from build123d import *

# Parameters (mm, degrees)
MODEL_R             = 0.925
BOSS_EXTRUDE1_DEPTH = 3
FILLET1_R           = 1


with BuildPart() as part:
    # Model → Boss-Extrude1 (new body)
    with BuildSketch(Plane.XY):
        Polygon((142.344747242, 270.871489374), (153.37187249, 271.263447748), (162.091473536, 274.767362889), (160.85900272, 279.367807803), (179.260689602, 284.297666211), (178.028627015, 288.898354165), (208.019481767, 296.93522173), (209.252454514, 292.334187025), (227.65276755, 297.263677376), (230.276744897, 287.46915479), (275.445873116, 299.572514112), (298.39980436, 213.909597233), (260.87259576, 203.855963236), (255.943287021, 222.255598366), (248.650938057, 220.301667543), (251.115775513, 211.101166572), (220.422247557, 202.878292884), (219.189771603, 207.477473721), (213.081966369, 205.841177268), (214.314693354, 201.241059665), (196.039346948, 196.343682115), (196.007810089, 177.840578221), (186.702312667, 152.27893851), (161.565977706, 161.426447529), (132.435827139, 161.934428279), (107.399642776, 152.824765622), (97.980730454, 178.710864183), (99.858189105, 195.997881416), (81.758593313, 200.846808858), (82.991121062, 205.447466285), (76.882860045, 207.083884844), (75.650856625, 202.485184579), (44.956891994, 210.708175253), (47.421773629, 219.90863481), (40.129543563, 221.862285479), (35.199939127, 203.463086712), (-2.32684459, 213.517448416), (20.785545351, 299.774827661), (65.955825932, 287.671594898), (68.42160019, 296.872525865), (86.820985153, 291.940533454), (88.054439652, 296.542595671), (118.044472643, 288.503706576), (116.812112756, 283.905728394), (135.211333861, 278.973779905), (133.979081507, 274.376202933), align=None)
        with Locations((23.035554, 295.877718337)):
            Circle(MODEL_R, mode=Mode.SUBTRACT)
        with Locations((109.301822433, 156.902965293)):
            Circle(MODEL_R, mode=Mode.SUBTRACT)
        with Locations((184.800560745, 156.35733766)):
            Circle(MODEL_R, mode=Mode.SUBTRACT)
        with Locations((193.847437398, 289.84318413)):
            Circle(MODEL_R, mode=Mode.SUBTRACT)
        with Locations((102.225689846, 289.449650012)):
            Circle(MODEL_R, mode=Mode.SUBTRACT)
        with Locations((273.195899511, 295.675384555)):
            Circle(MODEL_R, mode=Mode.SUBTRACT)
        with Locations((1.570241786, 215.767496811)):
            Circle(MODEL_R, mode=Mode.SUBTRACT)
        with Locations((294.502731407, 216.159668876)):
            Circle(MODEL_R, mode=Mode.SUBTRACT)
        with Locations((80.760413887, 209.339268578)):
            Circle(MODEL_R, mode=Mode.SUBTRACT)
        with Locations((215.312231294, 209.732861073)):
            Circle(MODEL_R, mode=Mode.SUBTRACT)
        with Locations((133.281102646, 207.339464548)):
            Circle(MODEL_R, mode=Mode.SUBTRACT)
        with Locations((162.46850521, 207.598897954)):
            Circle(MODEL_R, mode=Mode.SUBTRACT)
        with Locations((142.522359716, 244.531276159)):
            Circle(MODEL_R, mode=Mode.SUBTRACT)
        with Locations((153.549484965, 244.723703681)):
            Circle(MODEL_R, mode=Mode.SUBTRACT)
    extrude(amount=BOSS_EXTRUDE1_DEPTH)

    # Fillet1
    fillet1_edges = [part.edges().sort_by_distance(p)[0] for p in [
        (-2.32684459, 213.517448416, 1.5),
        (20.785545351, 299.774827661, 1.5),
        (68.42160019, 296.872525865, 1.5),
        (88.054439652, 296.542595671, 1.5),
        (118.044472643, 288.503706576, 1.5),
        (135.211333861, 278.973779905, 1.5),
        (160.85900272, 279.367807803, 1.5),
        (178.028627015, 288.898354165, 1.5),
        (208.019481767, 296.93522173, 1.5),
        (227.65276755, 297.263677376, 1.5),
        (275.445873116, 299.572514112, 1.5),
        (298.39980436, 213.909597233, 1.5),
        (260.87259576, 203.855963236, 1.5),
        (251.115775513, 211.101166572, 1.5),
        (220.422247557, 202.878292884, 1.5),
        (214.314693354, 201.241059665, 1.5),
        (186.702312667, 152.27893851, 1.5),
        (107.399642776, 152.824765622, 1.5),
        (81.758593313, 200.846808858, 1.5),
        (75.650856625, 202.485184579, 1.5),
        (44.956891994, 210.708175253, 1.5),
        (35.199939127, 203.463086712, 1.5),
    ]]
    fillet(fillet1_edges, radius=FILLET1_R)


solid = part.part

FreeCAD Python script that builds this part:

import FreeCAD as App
import Part
import Sketcher


def edges_at(feature, points):
    """Names of the edges that pass closest to the given points."""
    edges = feature.Shape.Edges
    near = lambda p: min(range(len(edges)), key=lambda i: edges[i].distToShape(Part.Vertex(*p))[0])
    return sorted({f"Edge{near(p) + 1}" for p in points})

doc = App.newDocument("Part")
params = doc.addObject("Spreadsheet::Sheet", "Params")
for row, (alias, value) in enumerate([
    ("sketch1_diameter", "1.85 mm"),
    ("sketch1_diameter2", "1.85 mm"),
    ("sketch1_diameter3", "1.85 mm"),
    ("sketch1_diameter4", "1.85 mm"),
    ("sketch1_diameter5", "1.85 mm"),
    ("pad1_length", "3 mm"),
    ("fillet_radius", "1 mm"),
], start=1):
    params.set(f"A{row}", alias)
    params.set(f"B{row}", "=" + value)
    params.setAlias(f"B{row}", alias)

body = doc.addObject("PartDesign::Body", "Body")

sketch1 = body.newObject("Sketcher::SketchObject", "Sketch")
sketch1.AttachmentSupport = (doc.getObject("XY_Plane"), [""])
sketch1.MapMode = "FlatFace"
sketch1.addGeometry([
    Part.LineSegment(App.Vector(153.371872, 271.263448, 0), App.Vector(142.344747, 270.871489, 0)),
    Part.LineSegment(App.Vector(142.344747, 270.871489, 0), App.Vector(133.979082, 274.376203, 0)),
    Part.LineSegment(App.Vector(133.979082, 274.376203, 0), App.Vector(135.211334, 278.97378, 0)),
    Part.LineSegment(App.Vector(135.211334, 278.97378, 0), App.Vector(116.812113, 283.905728, 0)),
    Part.LineSegment(App.Vector(116.812113, 283.905728, 0), App.Vector(118.044473, 288.503707, 0)),
    Part.LineSegment(App.Vector(118.044473, 288.503707, 0), App.Vector(88.05444, 296.542596, 0)),
    Part.LineSegment(App.Vector(88.05444, 296.542596, 0), App.Vector(86.820985, 291.940533, 0)),
    Part.LineSegment(App.Vector(86.820985, 291.940533, 0), App.Vector(68.4216, 296.872526, 0)),
    Part.LineSegment(App.Vector(68.4216, 296.872526, 0), App.Vector(65.955826, 287.671595, 0)),
    Part.LineSegment(App.Vector(65.955826, 287.671595, 0), App.Vector(20.785545, 299.774828, 0)),
    Part.LineSegment(App.Vector(20.785545, 299.774828, 0), App.Vector(-2.326845, 213.517448, 0)),
    Part.LineSegment(App.Vector(-2.326845, 213.517448, 0), App.Vector(35.199939, 203.463087, 0)),
    Part.LineSegment(App.Vector(35.199939, 203.463087, 0), App.Vector(40.129544, 221.862285, 0)),
    Part.LineSegment(App.Vector(40.129544, 221.862285, 0), App.Vector(47.421774, 219.908635, 0)),
    Part.LineSegment(App.Vector(47.421774, 219.908635, 0), App.Vector(44.956892, 210.708175, 0)),
    Part.LineSegment(App.Vector(44.956892, 210.708175, 0), App.Vector(75.650857, 202.485185, 0)),
    Part.LineSegment(App.Vector(75.650857, 202.485185, 0), App.Vector(76.88286, 207.083885, 0)),
    Part.LineSegment(App.Vector(76.88286, 207.083885, 0), App.Vector(82.991121, 205.447466, 0)),
    Part.LineSegment(App.Vector(82.991121, 205.447466, 0), App.Vector(81.758593, 200.846809, 0)),
    Part.LineSegment(App.Vector(81.758593, 200.846809, 0), App.Vector(99.858189, 195.997881, 0)),
    Part.LineSegment(App.Vector(99.858189, 195.997881, 0), App.Vector(97.98073, 178.710864, 0)),
    Part.LineSegment(App.Vector(97.98073, 178.710864, 0), App.Vector(107.399643, 152.824766, 0)),
    Part.LineSegment(App.Vector(107.399643, 152.824766, 0), App.Vector(132.435827, 161.934428, 0)),
    Part.LineSegment(App.Vector(132.435827, 161.934428, 0), App.Vector(161.565978, 161.426448, 0)),
    Part.LineSegment(App.Vector(161.565978, 161.426448, 0), App.Vector(186.702313, 152.278939, 0)),
    Part.LineSegment(App.Vector(186.702313, 152.278939, 0), App.Vector(196.00781, 177.840578, 0)),
    Part.LineSegment(App.Vector(196.00781, 177.840578, 0), App.Vector(196.039347, 196.343682, 0)),
    Part.LineSegment(App.Vector(196.039347, 196.343682, 0), App.Vector(214.314693, 201.24106, 0)),
    Part.LineSegment(App.Vector(214.314693, 201.24106, 0), App.Vector(213.081966, 205.841177, 0)),
    Part.LineSegment(App.Vector(213.081966, 205.841177, 0), App.Vector(219.189772, 207.477474, 0)),
    Part.LineSegment(App.Vector(219.189772, 207.477474, 0), App.Vector(220.422248, 202.878293, 0)),
    Part.LineSegment(App.Vector(220.422248, 202.878293, 0), App.Vector(251.115776, 211.101167, 0)),
    Part.LineSegment(App.Vector(251.115776, 211.101167, 0), App.Vector(248.650938, 220.301668, 0)),
    Part.LineSegment(App.Vector(248.650938, 220.301668, 0), App.Vector(255.943287, 222.255598, 0)),
    Part.LineSegment(App.Vector(255.943287, 222.255598, 0), App.Vector(260.872596, 203.855963, 0)),
    Part.LineSegment(App.Vector(260.872596, 203.855963, 0), App.Vector(298.399804, 213.909597, 0)),
    Part.LineSegment(App.Vector(298.399804, 213.909597, 0), App.Vector(275.445873, 299.572514, 0)),
    Part.LineSegment(App.Vector(275.445873, 299.572514, 0), App.Vector(230.276745, 287.469155, 0)),
    Part.LineSegment(App.Vector(230.276745, 287.469155, 0), App.Vector(227.652768, 297.263677, 0)),
    Part.LineSegment(App.Vector(227.652768, 297.263677, 0), App.Vector(209.252455, 292.334187, 0)),
    Part.LineSegment(App.Vector(209.252455, 292.334187, 0), App.Vector(208.019482, 296.935222, 0)),
    Part.LineSegment(App.Vector(208.019482, 296.935222, 0), App.Vector(178.028627, 288.898354, 0)),
    Part.LineSegment(App.Vector(178.028627, 288.898354, 0), App.Vector(179.26069, 284.297666, 0)),
    Part.LineSegment(App.Vector(179.26069, 284.297666, 0), App.Vector(160.859003, 279.367808, 0)),
    Part.LineSegment(App.Vector(160.859003, 279.367808, 0), App.Vector(162.091474, 274.767363, 0)),
    Part.LineSegment(App.Vector(162.091474, 274.767363, 0), App.Vector(153.371872, 271.263448, 0)),
    Part.Circle(App.Vector(184.800561, 156.357338, 0), App.Vector(0, 0, 1), 0.925),
    Part.Circle(App.Vector(294.502731, 216.159669, 0), App.Vector(0, 0, 1), 0.925),
    Part.Circle(App.Vector(162.468505, 207.598898, 0), App.Vector(0, 0, 1), 0.925),
    Part.Circle(App.Vector(215.312231, 209.732861, 0), App.Vector(0, 0, 1), 0.925),
    Part.Circle(App.Vector(109.301822, 156.902965, 0), App.Vector(0, 0, 1), 0.925),
    Part.Circle(App.Vector(133.281103, 207.339465, 0), App.Vector(0, 0, 1), 0.925),
    Part.Circle(App.Vector(80.760414, 209.339269, 0), App.Vector(0, 0, 1), 0.925),
    Part.Circle(App.Vector(1.570242, 215.767497, 0), App.Vector(0, 0, 1), 0.925),
    Part.Circle(App.Vector(153.549485, 244.723704, 0), App.Vector(0, 0, 1), 0.925),
    Part.Circle(App.Vector(273.1959, 295.675385, 0), App.Vector(0, 0, 1), 0.925),
    Part.Circle(App.Vector(193.847437, 289.843184, 0), App.Vector(0, 0, 1), 0.925),
    Part.Circle(App.Vector(142.52236, 244.531276, 0), App.Vector(0, 0, 1), 0.925),
    Part.Circle(App.Vector(102.22569, 289.44965, 0), App.Vector(0, 0, 1), 0.925),
    Part.Circle(App.Vector(23.035554, 295.877718, 0), App.Vector(0, 0, 1), 0.925),
], False)
sketch1.addConstraint([
    Sketcher.Constraint("Coincident", 0, 2, 1, 1),
    Sketcher.Constraint("Coincident", 1, 2, 2, 1),
    Sketcher.Constraint("Coincident", 2, 2, 3, 1),
    Sketcher.Constraint("Coincident", 3, 2, 4, 1),
    Sketcher.Constraint("Coincident", 4, 2, 5, 1),
    Sketcher.Constraint("Coincident", 5, 2, 6, 1),
    Sketcher.Constraint("Coincident", 6, 2, 7, 1),
    Sketcher.Constraint("Coincident", 7, 2, 8, 1),
    Sketcher.Constraint("Coincident", 8, 2, 9, 1),
    Sketcher.Constraint("Coincident", 9, 2, 10, 1),
    Sketcher.Constraint("Coincident", 10, 2, 11, 1),
    Sketcher.Constraint("Coincident", 11, 2, 12, 1),
    Sketcher.Constraint("Coincident", 12, 2, 13, 1),
    Sketcher.Constraint("Coincident", 13, 2, 14, 1),
    Sketcher.Constraint("Coincident", 14, 2, 15, 1),
    Sketcher.Constraint("Coincident", 15, 2, 16, 1),
    Sketcher.Constraint("Coincident", 16, 2, 17, 1),
    Sketcher.Constraint("Coincident", 17, 2, 18, 1),
    Sketcher.Constraint("Coincident", 18, 2, 19, 1),
    Sketcher.Constraint("Coincident", 19, 2, 20, 1),
    Sketcher.Constraint("Coincident", 20, 2, 21, 1),
    Sketcher.Constraint("Coincident", 21, 2, 22, 1),
    Sketcher.Constraint("Coincident", 22, 2, 23, 1),
    Sketcher.Constraint("Coincident", 23, 2, 24, 1),
    Sketcher.Constraint("Coincident", 24, 2, 25, 1),
    Sketcher.Constraint("Coincident", 25, 2, 26, 1),
    Sketcher.Constraint("Coincident", 26, 2, 27, 1),
    Sketcher.Constraint("Coincident", 27, 2, 28, 1),
    Sketcher.Constraint("Coincident", 28, 2, 29, 1),
    Sketcher.Constraint("Coincident", 29, 2, 30, 1),
    Sketcher.Constraint("Coincident", 30, 2, 31, 1),
    Sketcher.Constraint("Coincident", 31, 2, 32, 1),
    Sketcher.Constraint("Coincident", 32, 2, 33, 1),
    Sketcher.Constraint("Coincident", 33, 2, 34, 1),
    Sketcher.Constraint("Coincident", 34, 2, 35, 1),
    Sketcher.Constraint("Coincident", 35, 2, 36, 1),
    Sketcher.Constraint("Coincident", 36, 2, 37, 1),
    Sketcher.Constraint("Coincident", 37, 2, 38, 1),
    Sketcher.Constraint("Coincident", 38, 2, 39, 1),
    Sketcher.Constraint("Coincident", 39, 2, 40, 1),
    Sketcher.Constraint("Coincident", 40, 2, 41, 1),
    Sketcher.Constraint("Coincident", 41, 2, 42, 1),
    Sketcher.Constraint("Coincident", 42, 2, 43, 1),
    Sketcher.Constraint("Coincident", 43, 2, 44, 1),
    Sketcher.Constraint("Coincident", 44, 2, 45, 1),
    Sketcher.Constraint("Coincident", 45, 2, 0, 1),
    Sketcher.Constraint("Diameter", 46, 1.85),
    Sketcher.Constraint("Diameter", 47, 1.85),
    Sketcher.Constraint("Diameter", 48, 1.85),
    Sketcher.Constraint("Diameter", 49, 1.85),
    Sketcher.Constraint("Diameter", 50, 1.85),
    Sketcher.Constraint("Diameter", 51, 1.85),
    Sketcher.Constraint("Diameter", 52, 1.85),
    Sketcher.Constraint("Diameter", 53, 1.85),
    Sketcher.Constraint("Diameter", 54, 1.85),
    Sketcher.Constraint("Diameter", 55, 1.85),
    Sketcher.Constraint("Diameter", 56, 1.85),
    Sketcher.Constraint("Diameter", 57, 1.85),
    Sketcher.Constraint("Diameter", 58, 1.85),
    Sketcher.Constraint("Diameter", 59, 1.85),
    Sketcher.Constraint("DistanceY", 8, 2, 5, 2, 8.871001),
    Sketcher.Constraint("DistanceY", 35, 2, 33, 2, 8.346001),
    Sketcher.Constraint("DistanceX", -1, 1, 55, 3, 273.1959),
    Sketcher.Constraint("DistanceX", -1, 1, 7, 2, 68.4216),
    Sketcher.Constraint("DistanceY", -1, 1, 33, 2, 222.255598),
    Sketcher.Constraint("DistanceX", 49, 3, 47, 3, 79.1905),
    Sketcher.Constraint("DistanceY", 50, 3, 51, 3, 50.436499),
    Sketcher.Constraint("DistanceY", 48, 3, 53, 3, 8.168599),
    Sketcher.Constraint("DistanceY", 56, 3, 55, 3, 5.8322),
    Sketcher.Constraint("DistanceY", 54, 3, 1, 2, 29.652499),
    Sketcher.Constraint("DistanceY", 7, 2, 9, 2, 2.902302),
    Sketcher.Constraint("DistanceX", 10, 2, 59, 3, 25.362399),
    Sketcher.Constraint("DistanceY", 11, 2, 12, 2, 18.399199),
    Sketcher.Constraint("DistanceX", 53, 3, 12, 2, 38.559302),
    Sketcher.Constraint("DistanceY", 15, 2, 12, 2, 19.377101),
    Sketcher.Constraint("DistanceY", 15, 2, 16, 2, 4.5987),
    Sketcher.Constraint("DistanceX", 14, 2, 18, 2, 36.801701),
    Sketcher.Constraint("DistanceY", 50, 3, 20, 2, 21.807899),
    Sketcher.Constraint("DistanceY", 21, 2, 50, 3, 4.0782),
    Sketcher.Constraint("DistanceY", 21, 2, 17, 2, 52.622701),
    Sketcher.Constraint("DistanceY", 24, 2, 46, 3, 4.078399),
    Sketcher.Constraint("DistanceY", 27, 2, 49, 3, 8.491801),
    Sketcher.Constraint("DistanceY", 25, 2, 28, 2, 28.000599),
    Sketcher.Constraint("DistanceX", 26, 2, 30, 2, 24.382901),
    Sketcher.Constraint("DistanceY", 31, 2, 32, 2, 9.200501),
    Sketcher.Constraint("DistanceX", 45, 2, 44, 2, 8.719601),
    Sketcher.Constraint("Distance", 0, 11.034089),
    Sketcher.Constraint("Distance", 2, 4.759849),
    Sketcher.Constraint("Distance", 11, 38.85035),
    Sketcher.Constraint("Distance", 14, 9.52492),
    Sketcher.Constraint("Distance", 15, 31.77636),
    Sketcher.Constraint("Distance", 16, 4.760869),
    Sketcher.Constraint("Distance", 19, 18.737862),
    Sketcher.Constraint("Distance", 20, 17.388669),
    Sketcher.Constraint("Distance", 23, 29.134579),
    Sketcher.Constraint("Distance", 24, 26.749061),
    Sketcher.Constraint("Distance", 25, 27.202752),
    Sketcher.Constraint("Distance", 26, 18.503131),
    Sketcher.Constraint("Distance", 29, 6.323192),
    Sketcher.Constraint("Distance", 32, 9.524948),
    Sketcher.Constraint("Distance", 34, 19.048482),
    Sketcher.Constraint("Distance", 35, 38.850572),
    Sketcher.Constraint("Distance", 36, 88.684938),
    Sketcher.Constraint("Distance", 45, 9.39728),
    Sketcher.Constraint("DistanceX", -1, 1, 46, 3, 184.800561),
    Sketcher.Constraint("DistanceX", -1, 1, 47, 3, 294.502731),
    Sketcher.Constraint("DistanceY", -1, 1, 47, 3, 216.159669),
    Sketcher.Constraint("DistanceY", -1, 1, 49, 3, 209.732861),
    Sketcher.Constraint("DistanceY", -1, 1, 52, 3, 209.339269),
    Sketcher.Constraint("DistanceX", -1, 1, 53, 3, 1.570242),
    Sketcher.Constraint("DistanceX", -1, 1, 57, 3, 142.52236),
    Sketcher.Constraint("DistanceX", -1, 1, 58, 3, 102.22569),
    Sketcher.Constraint("DistanceY", -1, 1, 58, 3, 289.44965),
    Sketcher.Constraint("DistanceY", -1, 1, 59, 3, 295.877718),
    Sketcher.Constraint("DistanceY", -1, 1, 0, 2, 270.871489),
    Sketcher.Constraint("DistanceX", -1, 1, 1, 2, 133.979082),
    Sketcher.Constraint("DistanceY", -1, 1, 2, 2, 278.97378),
    Sketcher.Constraint("DistanceY", -1, 1, 3, 2, 283.905728),
    Sketcher.Constraint("DistanceX", -1, 1, 5, 2, 88.05444),
    Sketcher.Constraint("DistanceY", -1, 1, 10, 2, 213.517448),
    Sketcher.Constraint("DistanceX", -1, 1, 11, 2, 35.199939),
    Sketcher.Constraint("DistanceX", -1, 1, 14, 2, 44.956892),
    Sketcher.Constraint("DistanceX", -1, 1, 16, 2, 76.88286),
    Sketcher.Constraint("DistanceX", -1, 1, 17, 2, 82.991121),
    Sketcher.Constraint("DistanceY", -1, 1, 18, 2, 200.846809),
    Sketcher.Constraint("DistanceX", -1, 1, 19, 2, 99.858189),
    Sketcher.Constraint("DistanceX", -1, 1, 20, 2, 97.98073),
    Sketcher.Constraint("DistanceY", -1, 1, 22, 2, 161.934428),
    Sketcher.Constraint("DistanceY", -1, 1, 24, 2, 152.278939),
    Sketcher.Constraint("DistanceX", -1, 1, 25, 2, 196.00781),
    Sketcher.Constraint("DistanceY", -1, 1, 25, 2, 177.840578),
    Sketcher.Constraint("DistanceX", -1, 1, 29, 2, 219.189772),
    Sketcher.Constraint("DistanceX", -1, 1, 32, 2, 248.650938),
    Sketcher.Constraint("DistanceX", -1, 1, 40, 2, 208.019482),
    Sketcher.Constraint("DistanceY", -1, 1, 40, 2, 296.935222),
    Sketcher.Constraint("DistanceX", -1, 1, 42, 2, 179.26069),
    Sketcher.Constraint("DistanceY", 46, 3, 48, 3, 51.24156),
    Sketcher.Constraint("DistanceX", 50, 3, 46, 3, 75.498738),
    Sketcher.Constraint("DistanceX", 50, 3, 51, 3, 23.97928),
    Sketcher.Constraint("DistanceX", 52, 3, 51, 3, 52.520689),
    Sketcher.Constraint("DistanceX", 52, 3, 48, 3, 81.708091),
    Sketcher.Constraint("DistanceX", 54, 3, 48, 3, 8.91902),
    Sketcher.Constraint("DistanceY", 51, 3, 54, 3, 37.384239),
    Sketcher.Constraint("DistanceY", 54, 3, 55, 3, 50.951681),
    Sketcher.Constraint("DistanceY", 51, 3, 57, 3, 37.191812),
    Sketcher.Constraint("DistanceX", 59, 3, 52, 3, 57.72486),
    Sketcher.Constraint("DistanceX", 0, 2, 56, 3, 51.50269),
    Sketcher.Constraint("DistanceX", 3, 2, 2, 2, 18.399221),
    Sketcher.Constraint("DistanceX", 3, 2, 4, 2, 1.23236),
    Sketcher.Constraint("DistanceY", 3, 2, 4, 2, 4.597978),
    Sketcher.Constraint("DistanceY", 4, 2, 5, 2, 8.038889),
    Sketcher.Constraint("DistanceX", 6, 2, 2, 2, 48.390349),
    Sketcher.Constraint("DistanceY", 5, 2, 7, 2, 0.32993),
    Sketcher.Constraint("DistanceX", 8, 2, 6, 2, 20.865159),
    Sketcher.Constraint("DistanceY", 8, 2, 6, 2, 4.268939),
    Sketcher.Constraint("DistanceX", 9, 2, 59, 3, 2.250009),
    Sketcher.Constraint("DistanceX", 12, 2, 13, 2, 7.29223),
    Sketcher.Constraint("DistanceX", 21, 2, 50, 3, 1.90218),
    Sketcher.Constraint("DistanceX", 19, 2, 22, 2, 32.577638),
    Sketcher.Constraint("DistanceX", 48, 3, 26, 2, 33.570842),
    Sketcher.Constraint("DistanceX", 48, 3, 27, 2, 51.846188),
    Sketcher.Constraint("DistanceX", 26, 2, 28, 2, 17.042619),
    Sketcher.Constraint("DistanceY", 30, 2, 29, 2, 4.599181),
    Sketcher.Constraint("DistanceY", 28, 2, 31, 2, 5.259989),
    Sketcher.Constraint("DistanceX", 32, 2, 33, 2, 7.292349),
    Sketcher.Constraint("DistanceX", 31, 2, 34, 2, 9.75682),
    Sketcher.Constraint("DistanceY", 55, 3, 36, 2, 3.89713),
    Sketcher.Constraint("DistanceY", 37, 2, 56, 3, 2.374029),
    Sketcher.Constraint("DistanceX", 37, 2, 36, 2, 45.169128),
    Sketcher.Constraint("DistanceX", 56, 3, 38, 2, 33.80533),
    Sketcher.Constraint("DistanceX", 38, 2, 55, 3, 45.543132),
    Sketcher.Constraint("DistanceY", 32, 2, 38, 2, 76.96201),
    Sketcher.Constraint("DistanceY", 39, 2, 38, 2, 4.92949),
    Sketcher.Constraint("DistanceX", 39, 2, 37, 2, 21.02429),
    Sketcher.Constraint("DistanceX", 41, 2, 56, 3, 15.81881),
    Sketcher.Constraint("DistanceY", 41, 2, 56, 3, 0.94483),
    Sketcher.Constraint("DistanceY", 42, 2, 39, 2, 8.036521),
    Sketcher.Constraint("DistanceY", 43, 2, 42, 2, 4.929858),
    Sketcher.Constraint("DistanceX", 2, 2, 43, 2, 25.647669),
    Sketcher.Constraint("DistanceX", 43, 2, 44, 2, 1.232471),
])
sketch1.setExpression("Constraints[46]", "Params.sketch1_diameter")
sketch1.setExpression("Constraints[47]", "Params.sketch1_diameter2")
sketch1.setExpression("Constraints[48]", "Params.sketch1_diameter3")
sketch1.setExpression("Constraints[49]", "Params.sketch1_diameter4")
sketch1.setExpression("Constraints[50]", "Params.sketch1_diameter5")
pad1 = body.newObject("PartDesign::Pad", "Pad")
pad1.Profile = sketch1
pad1.setExpression("Length", "Params.pad1_length")
doc.recompute()

fillet = body.newObject("PartDesign::Fillet", "Fillet")
fillet.Base = (pad1, edges_at(pad1, [
    (-2.327, 213.517, 1.5),
    (20.786, 299.775, 1.5),
    (68.422, 296.873, 1.5),
    (88.054, 296.543, 1.5),
    (118.044, 288.504, 1.5),
    (135.211, 278.974, 1.5),
    (160.859, 279.368, 1.5),
    (178.029, 288.898, 1.5),
    (208.019, 296.935, 1.5),
    (227.653, 297.264, 1.5),
    (275.446, 299.573, 1.5),
    (298.4, 213.91, 1.5),
    (260.873, 203.856, 1.5),
    (251.116, 211.101, 1.5),
    (220.422, 202.878, 1.5),
    (214.315, 201.241, 1.5),
    (186.702, 152.279, 1.5),
    (107.4, 152.825, 1.5),
    (81.759, 200.847, 1.5),
    (75.651, 202.485, 1.5),
    (44.957, 210.708, 1.5),
    (35.2, 203.463, 1.5),
]))
fillet.setExpression("Radius", "Params.fillet_radius")

doc.recompute()
